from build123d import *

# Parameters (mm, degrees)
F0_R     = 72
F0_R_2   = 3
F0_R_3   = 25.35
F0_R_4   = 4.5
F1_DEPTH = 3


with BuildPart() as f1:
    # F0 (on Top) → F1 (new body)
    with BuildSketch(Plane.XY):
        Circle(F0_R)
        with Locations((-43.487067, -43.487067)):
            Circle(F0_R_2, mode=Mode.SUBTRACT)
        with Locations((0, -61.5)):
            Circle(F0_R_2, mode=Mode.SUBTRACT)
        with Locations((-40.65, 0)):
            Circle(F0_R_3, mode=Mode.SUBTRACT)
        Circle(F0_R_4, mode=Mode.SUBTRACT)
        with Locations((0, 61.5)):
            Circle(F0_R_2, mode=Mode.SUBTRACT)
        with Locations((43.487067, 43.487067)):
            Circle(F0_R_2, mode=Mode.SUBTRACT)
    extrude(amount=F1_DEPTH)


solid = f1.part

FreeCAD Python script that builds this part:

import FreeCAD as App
import Part
import Sketcher
Q = App.Units.Quantity

doc = App.newDocument("Part")
body = doc.addObject("PartDesign::Body", "Body")

# Sketch on XY plane
sketch1 = body.newObject("Sketcher::SketchObject", "Sketch")
sketch1.AttachmentSupport = (doc.getObject("XY_Plane"), [""])
sketch1.MapMode = "FlatFace"
sketch1.addGeometry([
    Part.Circle(App.Vector(0, 0, 0), App.Vector(0, 0, 1), 72),  # 0
    Part.Circle(App.Vector(-43.487067, -43.487067, 0), App.Vector(0, 0, 1), 3),  # 1
    Part.Circle(App.Vector(0, -61.5, 0), App.Vector(0, 0, 1), 3),  # 2
    Part.Circle(App.Vector(-40.65, 0, 0), App.Vector(0, 0, 1), 25.35),  # 3
    Part.Circle(App.Vector(0, 0, 0), App.Vector(0, 0, 1), 4.5),  # 4
    Part.Circle(App.Vector(0, 61.5, 0), App.Vector(0, 0, 1), 3),  # 5
    Part.Circle(App.Vector(43.487067, 43.487067, 0), App.Vector(0, 0, 1), 3),  # 6
], False)
sketch1.addConstraint([
    Sketcher.Constraint("Coincident", 0, 3, -1, 1),
    Sketcher.Constraint("Coincident", 4, 3, -1, 1),
    Sketcher.Constraint("Equal", 1, 2),
    Sketcher.Constraint("Equal", 2, 5),
    Sketcher.Constraint("Equal", 5, 6),
    Sketcher.Constraint("Symmetric", 2, 3, 5, 3, -1, 1),
    Sketcher.Constraint("Symmetric", 1, 3, 6, 3, -1, 1),
    Sketcher.Constraint("PointOnObject", 2, 3, -2),
    Sketcher.Constraint("PointOnObject", 3, 3, -1),
    Sketcher.Constraint("Diameter", 0, Q("144 mm")),
    Sketcher.Constraint("Diameter", 1, Q("6 mm")),
    Sketcher.Constraint("Diameter", 4, Q("9 mm")),
    Sketcher.Constraint("Diameter", 3, Q("50.7 mm")),
    Sketcher.Constraint("DistanceY", 2, 3, 5, 3, Q("123 mm")),
    Sketcher.Constraint("DistanceX", 3, 3, -1, 1, Q("40.65 mm")),
    Sketcher.Constraint("DistanceX", 1, 3, -1, 1, Q("43.487067 mm")),
    Sketcher.Constraint("DistanceY", 1, 3, -1, 1, Q("43.487067 mm")),
])
pad1 = body.newObject("PartDesign::Pad", "Pad")
pad1.Profile = sketch1
pad1.Length = 3

doc.recompute()
